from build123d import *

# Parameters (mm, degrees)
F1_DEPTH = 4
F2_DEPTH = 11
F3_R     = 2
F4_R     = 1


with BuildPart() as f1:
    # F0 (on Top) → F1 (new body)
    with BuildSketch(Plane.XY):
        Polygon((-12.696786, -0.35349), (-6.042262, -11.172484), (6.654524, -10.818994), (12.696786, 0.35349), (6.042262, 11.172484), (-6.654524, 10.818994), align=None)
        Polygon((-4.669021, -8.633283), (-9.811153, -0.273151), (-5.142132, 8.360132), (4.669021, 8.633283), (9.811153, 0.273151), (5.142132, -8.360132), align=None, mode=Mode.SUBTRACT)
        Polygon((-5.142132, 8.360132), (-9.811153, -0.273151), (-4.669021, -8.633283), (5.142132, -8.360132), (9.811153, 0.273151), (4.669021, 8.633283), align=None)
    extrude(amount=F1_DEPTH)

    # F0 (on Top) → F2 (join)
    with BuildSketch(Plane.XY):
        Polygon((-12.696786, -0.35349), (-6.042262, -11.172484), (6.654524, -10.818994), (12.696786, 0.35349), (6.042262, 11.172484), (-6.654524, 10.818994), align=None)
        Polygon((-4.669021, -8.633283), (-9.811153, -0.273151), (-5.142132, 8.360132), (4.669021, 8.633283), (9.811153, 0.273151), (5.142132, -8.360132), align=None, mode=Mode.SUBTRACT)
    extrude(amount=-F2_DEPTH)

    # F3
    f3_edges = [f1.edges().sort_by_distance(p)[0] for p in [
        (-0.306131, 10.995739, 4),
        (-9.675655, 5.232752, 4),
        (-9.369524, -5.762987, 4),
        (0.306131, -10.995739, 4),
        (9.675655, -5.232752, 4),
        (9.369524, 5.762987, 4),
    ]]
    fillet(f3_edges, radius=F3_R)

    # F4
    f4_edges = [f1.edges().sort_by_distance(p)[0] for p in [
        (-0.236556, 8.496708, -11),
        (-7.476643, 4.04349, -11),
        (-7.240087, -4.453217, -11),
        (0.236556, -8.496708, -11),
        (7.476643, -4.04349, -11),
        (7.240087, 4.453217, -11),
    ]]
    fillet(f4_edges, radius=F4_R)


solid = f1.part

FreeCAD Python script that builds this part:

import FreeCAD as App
import Part
import Sketcher
from FreeCAD import Vector
Q = App.Units.Quantity


def edges_at(feature, points):
    """Names of the edges that pass closest to the given points."""
    edges = feature.Shape.Edges
    near = lambda p: min(range(len(edges)), key=lambda i: edges[i].distToShape(Part.Vertex(*p))[0])
    return sorted({f"Edge{near(p) + 1}" for p in points})


def add_polygon(sketch, points):
    """Adds a closed chain of lines whose ends are joined by coincident constraints."""
    first, n = sketch.GeometryCount, len(points)
    for a, b in zip(points, points[1:] + points[:1]):
        sketch.addGeometry(Part.LineSegment(App.Vector(*a, 0), App.Vector(*b, 0)), False)
    for i in range(n):
        sketch.addConstraint(Sketcher.Constraint("Coincident", first + i, 2, first + (i + 1) % n, 1))

doc = App.newDocument("Part")
body = doc.addObject("PartDesign::Body", "Body")

# Sketch on XY plane
sketch1 = body.newObject("Sketcher::SketchObject", "Sketch")
sketch1.AttachmentSupport = (doc.getObject("XY_Plane"), [""])
sketch1.MapMode = "FlatFace"
add_polygon(sketch1, [(-13, 0), (-6, -11), (7, -11), (13, 0), (6, 11), (-7, 11)])  # lines 0-5
sketch1.addConstraint([
    Sketcher.Constraint("Symmetric", 0, 2, 3, 2, -1, 1),
    Sketcher.Constraint("Symmetric", 1, 2, 4, 2, -1, 1),
    Sketcher.Constraint("Symmetric", 2, 2, 5, 2, -1, 1),
    Sketcher.Constraint("Equal", 0, 1),
    Sketcher.Constraint("Equal", 1, 2),
    Sketcher.Constraint("DistanceY", -1, 1, 2, 2, Q("0.35349 mm")),
    Sketcher.Constraint("DistanceY", 0, 2, 1, 2, Q("0.35349 mm")),
    Sketcher.Constraint("DistanceX", 1, 2, 2, 2, Q("6.042262 mm")),
    Sketcher.Constraint("DistanceX", 0, 2, 2, 2, Q("18.739048 mm")),
])
pad1 = body.newObject("PartDesign::Pad", "Pad")
pad1.Profile = sketch1
pad1.Length = 4

# Sketch on XY plane
sketch2 = body.newObject("Sketcher::SketchObject", "Sketch001")
sketch2.AttachmentSupport = (doc.getObject("XY_Plane"), [""])
sketch2.MapMode = "FlatFace"
add_polygon(sketch2, [(-13, 0), (-6, -11), (7, -11), (13, 0), (6, 11), (-7, 11)])  # lines 0-5
add_polygon(sketch2, [(5, -8), (-5, -9), (-10, 0), (-5, 8), (5, 9), (10, 0)])  # lines 6-11
sketch2.addConstraint([
    Sketcher.Constraint("Symmetric", 0, 2, 3, 2, -1, 1),
    Sketcher.Constraint("Symmetric", 1, 2, 4, 2, -1, 1),
    Sketcher.Constraint("Symmetric", 2, 2, 5, 2, -1, 1),
    Sketcher.Constraint("Symmetric", 6, 2, 9, 2, -1, 1),
    Sketcher.Constraint("Symmetric", 7, 2, 10, 2, -1, 1),
    Sketcher.Constraint("Symmetric", 8, 2, 11, 2, -1, 1),
    Sketcher.Constraint("Parallel", 4, 6),
    Sketcher.Constraint("Parallel", 3, 7),
    Sketcher.Constraint("Parallel", 5, 8),
    Sketcher.Constraint("Equal", 0, 1),
    Sketcher.Constraint("Equal", 1, 2),
    Sketcher.Constraint("Equal", 6, 7),
    Sketcher.Constraint("Equal", 7, 8),
    Sketcher.Constraint("DistanceY", 0, 2, 6, 2, Q("2.539201 mm")),
    Sketcher.Constraint("DistanceY", -1, 1, 2, 2, Q("0.35349 mm")),
    Sketcher.Constraint("DistanceX", 6, 2, -1, 1, Q("4.669021 mm")),
    Sketcher.Constraint("DistanceY", 0, 2, 1, 2, Q("0.35349 mm")),
    Sketcher.Constraint("DistanceX", 1, 2, 2, 2, Q("6.042262 mm")),
])
pad2 = body.newObject("PartDesign::Pad", "Pad001")
pad2.Profile = sketch2
pad2.Length = 11
pad2.Reversed = True
doc.recompute()

fillet = body.newObject("PartDesign::Fillet", "Fillet")
fillet.Base = (pad2, edges_at(pad2, [
    (-0.306, 10.996, 4),
    (-9.676, 5.233, 4),
    (-9.37, -5.763, 4),
    (0.306, -10.996, 4),
    (9.676, -5.233, 4),
    (9.37, 5.763, 4),
]))
fillet.Radius = 2
doc.recompute()

fillet2 = body.newObject("PartDesign::Fillet", "Fillet001")
fillet2.Base = (fillet, edges_at(fillet, [
    (-0.237, 8.497, -11),
    (-7.477, 4.043, -11),
    (-7.24, -4.453, -11),
    (0.237, -8.497, -11),
    (7.477, -4.043, -11),
    (7.24, 4.453, -11),
]))
fillet2.Radius = 1

doc.recompute()
